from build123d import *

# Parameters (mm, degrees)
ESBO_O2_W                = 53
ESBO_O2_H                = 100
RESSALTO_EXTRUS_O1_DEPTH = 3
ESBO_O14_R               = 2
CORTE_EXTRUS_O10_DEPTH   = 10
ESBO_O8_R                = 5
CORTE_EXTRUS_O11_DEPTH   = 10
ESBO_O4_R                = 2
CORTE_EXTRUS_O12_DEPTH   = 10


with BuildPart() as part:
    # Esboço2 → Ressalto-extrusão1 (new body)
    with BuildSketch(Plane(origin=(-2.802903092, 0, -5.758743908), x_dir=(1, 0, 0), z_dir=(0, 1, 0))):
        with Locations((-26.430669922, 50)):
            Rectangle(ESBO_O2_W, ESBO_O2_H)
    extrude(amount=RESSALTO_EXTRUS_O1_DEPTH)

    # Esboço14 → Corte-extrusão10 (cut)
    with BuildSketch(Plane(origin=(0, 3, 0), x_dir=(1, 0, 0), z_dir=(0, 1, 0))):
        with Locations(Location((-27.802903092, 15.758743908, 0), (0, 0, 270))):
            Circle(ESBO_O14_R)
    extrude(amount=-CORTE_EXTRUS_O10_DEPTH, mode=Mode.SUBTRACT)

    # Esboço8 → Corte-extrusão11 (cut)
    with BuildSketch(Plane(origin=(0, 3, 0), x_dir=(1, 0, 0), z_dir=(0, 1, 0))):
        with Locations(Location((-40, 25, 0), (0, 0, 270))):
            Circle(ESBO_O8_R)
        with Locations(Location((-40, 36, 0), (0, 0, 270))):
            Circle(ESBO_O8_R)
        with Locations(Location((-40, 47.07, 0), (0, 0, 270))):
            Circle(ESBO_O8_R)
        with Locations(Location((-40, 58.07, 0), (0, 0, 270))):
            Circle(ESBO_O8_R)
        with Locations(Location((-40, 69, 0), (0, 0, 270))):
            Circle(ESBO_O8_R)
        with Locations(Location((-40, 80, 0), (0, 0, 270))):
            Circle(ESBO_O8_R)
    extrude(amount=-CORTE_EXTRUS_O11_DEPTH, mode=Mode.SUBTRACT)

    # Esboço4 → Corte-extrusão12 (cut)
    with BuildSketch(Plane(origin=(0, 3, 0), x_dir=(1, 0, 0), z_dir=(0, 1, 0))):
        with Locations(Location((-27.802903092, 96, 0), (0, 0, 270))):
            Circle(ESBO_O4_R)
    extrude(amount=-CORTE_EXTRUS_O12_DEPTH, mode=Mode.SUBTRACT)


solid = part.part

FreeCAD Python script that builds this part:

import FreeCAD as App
import Part
import Sketcher
Q = App.Units.Quantity

doc = App.newDocument("Part")
params = doc.addObject("Spreadsheet::Sheet", "Params")
for row, (alias, value) in enumerate([
    ("sketch1_width", "53 mm"),
    ("sketch1_height", "100 mm"),
    ("pad1_length", "3 mm"),
    ("sketch2_diameter", "4 mm"),
    ("pocket1_length", "10 mm"),
    ("sketch3_diameter", "10 mm"),
    ("pocket2_length", "10 mm"),
    ("sketch4_diameter", "4 mm"),
    ("pocket3_length", "10 mm"),
], start=1):
    params.set(f"A{row}", alias)
    params.set(f"B{row}", "=" + value)
    params.setAlias(f"B{row}", alias)

body = doc.addObject("PartDesign::Body", "Body")

# Sketch on XZ plane
sketch1 = body.newObject("Sketcher::SketchObject", "Sketch")
sketch1.AttachmentSupport = (doc.getObject("XZ_Plane"), [""])
sketch1.MapMode = "FlatFace"
sketch1.addGeometry([
    Part.LineSegment(App.Vector(-56, -106, 0), App.Vector(-56, -6, 0)),
    Part.LineSegment(App.Vector(-56, -6, 0), App.Vector(-3, -6, 0)),
    Part.LineSegment(App.Vector(-3, -6, 0), App.Vector(-3, -106, 0)),
    Part.LineSegment(App.Vector(-3, -106, 0), App.Vector(-56, -106, 0)),
], False)
sketch1.addConstraint([
    Sketcher.Constraint("Coincident", 0, 2, 1, 1),
    Sketcher.Constraint("Coincident", 1, 2, 2, 1),
    Sketcher.Constraint("Coincident", 2, 2, 3, 1),
    Sketcher.Constraint("Coincident", 3, 2, 0, 1),
    Sketcher.Constraint("Vertical", 0),
    Sketcher.Constraint("Horizontal", 1),
    Sketcher.Constraint("Vertical", 2),
    Sketcher.Constraint("Horizontal", 3),
    Sketcher.Constraint("DistanceX", 1, 1, 1, 2, Q("53 mm")),
    Sketcher.Constraint("DistanceY", 0, 1, 0, 2, Q("100 mm")),
    Sketcher.Constraint("DistanceX", 0, 2, -1, 1, Q("55.733573 mm")),
    Sketcher.Constraint("DistanceY", 0, 2, -1, 1, Q("5.758744 mm")),
])
sketch1.setExpression("Constraints[8]", "Params.sketch1_width")
sketch1.setExpression("Constraints[9]", "Params.sketch1_height")
pad1 = body.newObject("PartDesign::Pad", "Pad")
pad1.Profile = sketch1
pad1.setExpression("Length", "Params.pad1_length")
pad1.Reversed = True

# Sketch on XZ plane
sketch2 = body.newObject("Sketcher::SketchObject", "Sketch001")
sketch2.AttachmentSupport = (doc.getObject("XZ_Plane"), [""])
sketch2.MapMode = "FlatFace"
sketch2.AttachmentOffset = App.Placement(App.Vector(0, 0, -3), App.Rotation())
sketch2.addGeometry(Part.Circle(App.Vector(-27.8, -15.8, 0), App.Vector(0, 0, 1), 2), False)
sketch2.addConstraint([
    Sketcher.Constraint("Diameter", 0, Q("4 mm")),
    Sketcher.Constraint("DistanceX", 0, 3, -1, 1, Q("27.802903 mm")),
    Sketcher.Constraint("DistanceY", 0, 3, -1, 1, Q("15.758744 mm")),
])
sketch2.setExpression("Constraints[0]", "Params.sketch2_diameter")
pocket1 = body.newObject("PartDesign::Pocket", "Pocket")
pocket1.Profile = sketch2
pocket1.setExpression("Length", "Params.pocket1_length")
pocket1.Reversed = True

# Sketch on XZ plane
sketch3 = body.newObject("Sketcher::SketchObject", "Sketch002")
sketch3.AttachmentSupport = (doc.getObject("XZ_Plane"), [""])
sketch3.MapMode = "FlatFace"
sketch3.AttachmentOffset = App.Placement(App.Vector(0, 0, -3), App.Rotation())
sketch3.addGeometry([
    Part.Circle(App.Vector(-40, -25, 0), App.Vector(0, 0, 1), 5),  # 0
    Part.Circle(App.Vector(-40, -36, 0), App.Vector(0, 0, 1), 5),  # 1
    Part.Circle(App.Vector(-40, -47, 0), App.Vector(0, 0, 1), 5),  # 2
    Part.Circle(App.Vector(-40, -58, 0), App.Vector(0, 0, 1), 5),  # 3
    Part.Circle(App.Vector(-40, -69, 0), App.Vector(0, 0, 1), 5),  # 4
    Part.Circle(App.Vector(-40, -80, 0), App.Vector(0, 0, 1), 5),  # 5
], False)
sketch3.addConstraint([
    Sketcher.Constraint("Equal", 0, 1),
    Sketcher.Constraint("Equal", 1, 2),
    Sketcher.Constraint("Equal", 2, 3),
    Sketcher.Constraint("Equal", 3, 4),
    Sketcher.Constraint("Equal", 4, 5),
    Sketcher.Constraint("Vertical", 0, 3, 1, 3),
    Sketcher.Constraint("Vertical", 1, 3, 2, 3),
    Sketcher.Constraint("Vertical", 2, 3, 3, 3),
    Sketcher.Constraint("Vertical", 3, 3, 4, 3),
    Sketcher.Constraint("Vertical", 4, 3, 5, 3),
    Sketcher.Constraint("Diameter", 0, Q("10 mm")),
    Sketcher.Constraint("DistanceX", 0, 3, -1, 1, Q("40 mm")),
    Sketcher.Constraint("DistanceY", 0, 3, -1, 1, Q("25 mm")),
    Sketcher.Constraint("DistanceY", 1, 3, -1, 1, Q("36 mm")),
    Sketcher.Constraint("DistanceY", 4, 3, -1, 1, Q("69 mm")),
    Sketcher.Constraint("DistanceY", 5, 3, -1, 1, Q("80 mm")),
    Sketcher.Constraint("DistanceY", 3, 3, 2, 3, Q("11 mm")),
    Sketcher.Constraint("DistanceY", 2, 3, -1, 1, Q("47.07 mm")),
])
sketch3.setExpression("Constraints[10]", "Params.sketch3_diameter")
pocket2 = body.newObject("PartDesign::Pocket", "Pocket001")
pocket2.Profile = sketch3
pocket2.setExpression("Length", "Params.pocket2_length")
pocket2.Reversed = True

# Sketch on XZ plane
sketch4 = body.newObject("Sketcher::SketchObject", "Sketch003")
sketch4.AttachmentSupport = (doc.getObject("XZ_Plane"), [""])
sketch4.MapMode = "FlatFace"
sketch4.AttachmentOffset = App.Placement(App.Vector(0, 0, -3), App.Rotation())
sketch4.addGeometry(Part.Circle(App.Vector(-27.8, -96, 0), App.Vector(0, 0, 1), 2), False)
sketch4.addConstraint([
    Sketcher.Constraint("Diameter", 0, Q("4 mm")),
    Sketcher.Constraint("DistanceY", 0, 3, -1, 1, Q("96 mm")),
    Sketcher.Constraint("DistanceX", 0, 3, -1, 1, Q("27.802903 mm")),
])
sketch4.setExpression("Constraints[0]", "Params.sketch4_diameter")
pocket3 = body.newObject("PartDesign::Pocket", "Pocket002")
pocket3.Profile = sketch4
pocket3.setExpression("Length", "Params.pocket3_length")
pocket3.Reversed = True

doc.recompute()
